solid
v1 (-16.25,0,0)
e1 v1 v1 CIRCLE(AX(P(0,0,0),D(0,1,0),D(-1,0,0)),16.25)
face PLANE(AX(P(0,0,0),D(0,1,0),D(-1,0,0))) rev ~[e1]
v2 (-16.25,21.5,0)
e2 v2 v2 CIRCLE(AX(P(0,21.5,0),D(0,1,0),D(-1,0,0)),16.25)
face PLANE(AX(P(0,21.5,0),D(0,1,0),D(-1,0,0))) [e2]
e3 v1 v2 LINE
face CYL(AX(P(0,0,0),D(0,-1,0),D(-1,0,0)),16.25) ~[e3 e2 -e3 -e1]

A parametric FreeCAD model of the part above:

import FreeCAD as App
import Part
import Sketcher

V = App.Vector
Q = App.Units.Quantity

doc = App.newDocument("Part")
body = doc.addObject("PartDesign::Body", "Body")

sketch1 = body.newObject("Sketcher::SketchObject", "Sketch")
sketch1.AttachmentSupport = (doc.getObject("XZ_Plane"), [""])
sketch1.MapMode = "FlatFace"
sketch1.addGeometry(Part.Circle(V(0, 0, 0), V(0, 0, 1), 16), False)
sketch1.addConstraint(Sketcher.Constraint("Coincident", 0, 3, -1, 1))
sketch1.addConstraint(Sketcher.Constraint("Diameter", 0, Q("32.5 mm")))
pad1 = body.newObject("PartDesign::Pad", "Pad")
pad1.Profile = sketch1
pad1.Length = 21.5
pad1.Reversed = True

doc.recompute()
